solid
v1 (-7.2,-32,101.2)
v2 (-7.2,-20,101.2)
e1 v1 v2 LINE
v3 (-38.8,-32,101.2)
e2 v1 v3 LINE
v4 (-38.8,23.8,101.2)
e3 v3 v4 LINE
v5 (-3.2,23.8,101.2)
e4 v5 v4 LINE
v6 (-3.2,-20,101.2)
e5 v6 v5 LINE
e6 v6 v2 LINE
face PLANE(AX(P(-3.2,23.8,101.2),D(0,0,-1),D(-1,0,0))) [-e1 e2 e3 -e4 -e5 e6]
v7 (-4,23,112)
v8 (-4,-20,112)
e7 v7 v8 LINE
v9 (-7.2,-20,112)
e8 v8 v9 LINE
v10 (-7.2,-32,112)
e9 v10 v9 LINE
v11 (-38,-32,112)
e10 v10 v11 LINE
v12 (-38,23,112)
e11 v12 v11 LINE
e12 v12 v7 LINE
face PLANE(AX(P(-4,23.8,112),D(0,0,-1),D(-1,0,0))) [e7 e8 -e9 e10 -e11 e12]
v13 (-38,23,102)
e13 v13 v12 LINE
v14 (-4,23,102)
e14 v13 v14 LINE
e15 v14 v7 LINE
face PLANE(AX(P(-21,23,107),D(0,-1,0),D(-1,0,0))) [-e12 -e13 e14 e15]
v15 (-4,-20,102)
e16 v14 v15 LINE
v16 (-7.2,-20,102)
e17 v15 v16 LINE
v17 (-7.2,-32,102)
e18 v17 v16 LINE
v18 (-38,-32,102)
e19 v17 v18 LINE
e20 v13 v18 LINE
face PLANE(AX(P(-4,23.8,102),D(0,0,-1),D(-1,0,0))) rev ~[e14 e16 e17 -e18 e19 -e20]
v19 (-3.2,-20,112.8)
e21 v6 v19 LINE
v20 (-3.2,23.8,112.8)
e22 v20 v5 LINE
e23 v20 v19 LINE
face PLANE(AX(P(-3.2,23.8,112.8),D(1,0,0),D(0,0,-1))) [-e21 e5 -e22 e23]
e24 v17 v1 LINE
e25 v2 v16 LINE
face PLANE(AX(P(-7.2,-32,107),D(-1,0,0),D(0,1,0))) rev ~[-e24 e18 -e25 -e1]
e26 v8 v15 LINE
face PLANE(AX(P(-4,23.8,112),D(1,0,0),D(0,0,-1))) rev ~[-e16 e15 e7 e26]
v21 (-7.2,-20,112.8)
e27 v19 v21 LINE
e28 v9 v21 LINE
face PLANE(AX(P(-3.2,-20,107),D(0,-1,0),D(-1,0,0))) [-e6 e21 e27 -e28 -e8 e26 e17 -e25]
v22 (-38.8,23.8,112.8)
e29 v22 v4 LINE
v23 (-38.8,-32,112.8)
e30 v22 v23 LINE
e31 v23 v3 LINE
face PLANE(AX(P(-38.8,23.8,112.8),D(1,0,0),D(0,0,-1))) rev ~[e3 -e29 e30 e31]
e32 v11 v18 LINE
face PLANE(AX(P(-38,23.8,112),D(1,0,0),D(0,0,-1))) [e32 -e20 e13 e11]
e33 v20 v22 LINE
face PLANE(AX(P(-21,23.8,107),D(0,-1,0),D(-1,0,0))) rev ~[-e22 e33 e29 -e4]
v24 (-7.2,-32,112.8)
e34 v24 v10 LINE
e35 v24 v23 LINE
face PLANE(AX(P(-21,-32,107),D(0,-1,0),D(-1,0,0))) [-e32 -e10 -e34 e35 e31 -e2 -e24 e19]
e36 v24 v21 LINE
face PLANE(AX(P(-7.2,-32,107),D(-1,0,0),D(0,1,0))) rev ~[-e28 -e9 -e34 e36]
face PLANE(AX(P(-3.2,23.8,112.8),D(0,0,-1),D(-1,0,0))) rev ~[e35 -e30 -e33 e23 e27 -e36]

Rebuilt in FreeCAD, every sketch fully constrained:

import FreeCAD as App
import Part
import Sketcher


def add_polygon(sketch, points):
    """Adds a closed chain of lines whose ends are joined by coincident constraints."""
    first, n = sketch.GeometryCount, len(points)
    for a, b in zip(points, points[1:] + points[:1]):
        sketch.addGeometry(Part.LineSegment(App.Vector(*a, 0), App.Vector(*b, 0)), False)
    for i in range(n):
        sketch.addConstraint(Sketcher.Constraint("Coincident", first + i, 2, first + (i + 1) % n, 1))

doc = App.newDocument("Part")
body = doc.addObject("PartDesign::Body", "Body")

# Sketch on XZ plane
sketch1 = body.newObject("Sketcher::SketchObject", "Sketch")
sketch1.AttachmentSupport = (doc.getObject("XZ_Plane"), [""])
sketch1.MapMode = "FlatFace"
add_polygon(sketch1, [(-17.8, 5.8), (-17.8, -5.8), (17.8, -5.8), (17.8, 5.8)])  # lines 0-3
sketch1.addConstraint([
    Sketcher.Constraint("Vertical", 0),
    Sketcher.Constraint("Horizontal", 1),
    Sketcher.Constraint("Vertical", 2),
    Sketcher.Constraint("Horizontal", 3),
    Sketcher.Constraint("Symmetric", 0, 2, 2, 2, -1, 1),
    Sketcher.Constraint("DistanceX", 1, 1, 1, 2, 35.6),
    Sketcher.Constraint("DistanceY", 0, 2, 0, 1, 11.6),
])
pad1 = body.newObject("PartDesign::Pad", "Pad")
pad1.Profile = sketch1
pad1.Length = 0.8

# Sketch on XZ plane
sketch2 = body.newObject("Sketcher::SketchObject", "Sketch001")
sketch2.AttachmentSupport = (doc.getObject("XZ_Plane"), [""])
sketch2.MapMode = "FlatFace"
add_polygon(sketch2, [(-17.8, 5.8), (-17.8, -5.8), (17.8, -5.8), (17.8, 5.8)])  # lines 0-3
add_polygon(sketch2, [(17, -5), (-17, -5), (-17, 5), (17, 5)])  # lines 4-7
sketch2.addConstraint([
    Sketcher.Constraint("Vertical", 0),
    Sketcher.Constraint("Horizontal", 1),
    Sketcher.Constraint("Vertical", 2),
    Sketcher.Constraint("Horizontal", 3),
    Sketcher.Constraint("Horizontal", 4),
    Sketcher.Constraint("Vertical", 5),
    Sketcher.Constraint("Horizontal", 6),
    Sketcher.Constraint("Vertical", 7),
    Sketcher.Constraint("Symmetric", 0, 2, 2, 2, -1, 1),
    Sketcher.Constraint("Symmetric", 4, 2, 6, 2, -1, 1),
    Sketcher.Constraint("DistanceX", 4, 2, 4, 1, 34.0),
    Sketcher.Constraint("DistanceY", 5, 1, 5, 2, 10.0),
    Sketcher.Constraint("DistanceX", 1, 1, 1, 2, 35.6),
    Sketcher.Constraint("DistanceY", 0, 2, 0, 1, 11.6),
])
pad2 = body.newObject("PartDesign::Pad", "Pad001")
pad2.Profile = sketch2
pad2.Length = 55.8

# Sketch on XY plane
sketch3 = body.newObject("Sketcher::SketchObject", "Sketch002")
sketch3.AttachmentSupport = (doc.getObject("XY_Plane"), [""])
sketch3.MapMode = "FlatFace"
add_polygon(sketch3, [(-17.8, -43.8), (-17.8, -55.8), (-13.8, -55.8), (-13.8, -43.8)])  # lines 0-3
sketch3.addConstraint([
    Sketcher.Constraint("Vertical", 0),
    Sketcher.Constraint("Horizontal", 1),
    Sketcher.Constraint("Vertical", 2),
    Sketcher.Constraint("Horizontal", 3),
    Sketcher.Constraint("DistanceX", 1, 1, 1, 2, 4.0),
    Sketcher.Constraint("DistanceY", 0, 2, 0, 1, 12.0),
    Sketcher.Constraint("DistanceX", 0, 2, -1, 1, 17.8),
    Sketcher.Constraint("DistanceY", 0, 2, -1, 1, 55.8),
])
pocket1 = body.newObject("PartDesign::Pocket", "Pocket")
pocket1.Profile = sketch3
pocket1.Length = 11.6
pocket1.Midplane = True
body2 = doc.addObject("PartDesign::Body", "Body001")
doc.recompute()

body.Placement = App.Placement(App.Vector(-21, 23.8, 107), App.Rotation(App.Vector(0, 1, 0), 180))
boolean = body2.newObject("PartDesign::Boolean", "Boolean")
boolean.Type = "Fuse"
boolean.addObjects([body])

doc.recompute()
